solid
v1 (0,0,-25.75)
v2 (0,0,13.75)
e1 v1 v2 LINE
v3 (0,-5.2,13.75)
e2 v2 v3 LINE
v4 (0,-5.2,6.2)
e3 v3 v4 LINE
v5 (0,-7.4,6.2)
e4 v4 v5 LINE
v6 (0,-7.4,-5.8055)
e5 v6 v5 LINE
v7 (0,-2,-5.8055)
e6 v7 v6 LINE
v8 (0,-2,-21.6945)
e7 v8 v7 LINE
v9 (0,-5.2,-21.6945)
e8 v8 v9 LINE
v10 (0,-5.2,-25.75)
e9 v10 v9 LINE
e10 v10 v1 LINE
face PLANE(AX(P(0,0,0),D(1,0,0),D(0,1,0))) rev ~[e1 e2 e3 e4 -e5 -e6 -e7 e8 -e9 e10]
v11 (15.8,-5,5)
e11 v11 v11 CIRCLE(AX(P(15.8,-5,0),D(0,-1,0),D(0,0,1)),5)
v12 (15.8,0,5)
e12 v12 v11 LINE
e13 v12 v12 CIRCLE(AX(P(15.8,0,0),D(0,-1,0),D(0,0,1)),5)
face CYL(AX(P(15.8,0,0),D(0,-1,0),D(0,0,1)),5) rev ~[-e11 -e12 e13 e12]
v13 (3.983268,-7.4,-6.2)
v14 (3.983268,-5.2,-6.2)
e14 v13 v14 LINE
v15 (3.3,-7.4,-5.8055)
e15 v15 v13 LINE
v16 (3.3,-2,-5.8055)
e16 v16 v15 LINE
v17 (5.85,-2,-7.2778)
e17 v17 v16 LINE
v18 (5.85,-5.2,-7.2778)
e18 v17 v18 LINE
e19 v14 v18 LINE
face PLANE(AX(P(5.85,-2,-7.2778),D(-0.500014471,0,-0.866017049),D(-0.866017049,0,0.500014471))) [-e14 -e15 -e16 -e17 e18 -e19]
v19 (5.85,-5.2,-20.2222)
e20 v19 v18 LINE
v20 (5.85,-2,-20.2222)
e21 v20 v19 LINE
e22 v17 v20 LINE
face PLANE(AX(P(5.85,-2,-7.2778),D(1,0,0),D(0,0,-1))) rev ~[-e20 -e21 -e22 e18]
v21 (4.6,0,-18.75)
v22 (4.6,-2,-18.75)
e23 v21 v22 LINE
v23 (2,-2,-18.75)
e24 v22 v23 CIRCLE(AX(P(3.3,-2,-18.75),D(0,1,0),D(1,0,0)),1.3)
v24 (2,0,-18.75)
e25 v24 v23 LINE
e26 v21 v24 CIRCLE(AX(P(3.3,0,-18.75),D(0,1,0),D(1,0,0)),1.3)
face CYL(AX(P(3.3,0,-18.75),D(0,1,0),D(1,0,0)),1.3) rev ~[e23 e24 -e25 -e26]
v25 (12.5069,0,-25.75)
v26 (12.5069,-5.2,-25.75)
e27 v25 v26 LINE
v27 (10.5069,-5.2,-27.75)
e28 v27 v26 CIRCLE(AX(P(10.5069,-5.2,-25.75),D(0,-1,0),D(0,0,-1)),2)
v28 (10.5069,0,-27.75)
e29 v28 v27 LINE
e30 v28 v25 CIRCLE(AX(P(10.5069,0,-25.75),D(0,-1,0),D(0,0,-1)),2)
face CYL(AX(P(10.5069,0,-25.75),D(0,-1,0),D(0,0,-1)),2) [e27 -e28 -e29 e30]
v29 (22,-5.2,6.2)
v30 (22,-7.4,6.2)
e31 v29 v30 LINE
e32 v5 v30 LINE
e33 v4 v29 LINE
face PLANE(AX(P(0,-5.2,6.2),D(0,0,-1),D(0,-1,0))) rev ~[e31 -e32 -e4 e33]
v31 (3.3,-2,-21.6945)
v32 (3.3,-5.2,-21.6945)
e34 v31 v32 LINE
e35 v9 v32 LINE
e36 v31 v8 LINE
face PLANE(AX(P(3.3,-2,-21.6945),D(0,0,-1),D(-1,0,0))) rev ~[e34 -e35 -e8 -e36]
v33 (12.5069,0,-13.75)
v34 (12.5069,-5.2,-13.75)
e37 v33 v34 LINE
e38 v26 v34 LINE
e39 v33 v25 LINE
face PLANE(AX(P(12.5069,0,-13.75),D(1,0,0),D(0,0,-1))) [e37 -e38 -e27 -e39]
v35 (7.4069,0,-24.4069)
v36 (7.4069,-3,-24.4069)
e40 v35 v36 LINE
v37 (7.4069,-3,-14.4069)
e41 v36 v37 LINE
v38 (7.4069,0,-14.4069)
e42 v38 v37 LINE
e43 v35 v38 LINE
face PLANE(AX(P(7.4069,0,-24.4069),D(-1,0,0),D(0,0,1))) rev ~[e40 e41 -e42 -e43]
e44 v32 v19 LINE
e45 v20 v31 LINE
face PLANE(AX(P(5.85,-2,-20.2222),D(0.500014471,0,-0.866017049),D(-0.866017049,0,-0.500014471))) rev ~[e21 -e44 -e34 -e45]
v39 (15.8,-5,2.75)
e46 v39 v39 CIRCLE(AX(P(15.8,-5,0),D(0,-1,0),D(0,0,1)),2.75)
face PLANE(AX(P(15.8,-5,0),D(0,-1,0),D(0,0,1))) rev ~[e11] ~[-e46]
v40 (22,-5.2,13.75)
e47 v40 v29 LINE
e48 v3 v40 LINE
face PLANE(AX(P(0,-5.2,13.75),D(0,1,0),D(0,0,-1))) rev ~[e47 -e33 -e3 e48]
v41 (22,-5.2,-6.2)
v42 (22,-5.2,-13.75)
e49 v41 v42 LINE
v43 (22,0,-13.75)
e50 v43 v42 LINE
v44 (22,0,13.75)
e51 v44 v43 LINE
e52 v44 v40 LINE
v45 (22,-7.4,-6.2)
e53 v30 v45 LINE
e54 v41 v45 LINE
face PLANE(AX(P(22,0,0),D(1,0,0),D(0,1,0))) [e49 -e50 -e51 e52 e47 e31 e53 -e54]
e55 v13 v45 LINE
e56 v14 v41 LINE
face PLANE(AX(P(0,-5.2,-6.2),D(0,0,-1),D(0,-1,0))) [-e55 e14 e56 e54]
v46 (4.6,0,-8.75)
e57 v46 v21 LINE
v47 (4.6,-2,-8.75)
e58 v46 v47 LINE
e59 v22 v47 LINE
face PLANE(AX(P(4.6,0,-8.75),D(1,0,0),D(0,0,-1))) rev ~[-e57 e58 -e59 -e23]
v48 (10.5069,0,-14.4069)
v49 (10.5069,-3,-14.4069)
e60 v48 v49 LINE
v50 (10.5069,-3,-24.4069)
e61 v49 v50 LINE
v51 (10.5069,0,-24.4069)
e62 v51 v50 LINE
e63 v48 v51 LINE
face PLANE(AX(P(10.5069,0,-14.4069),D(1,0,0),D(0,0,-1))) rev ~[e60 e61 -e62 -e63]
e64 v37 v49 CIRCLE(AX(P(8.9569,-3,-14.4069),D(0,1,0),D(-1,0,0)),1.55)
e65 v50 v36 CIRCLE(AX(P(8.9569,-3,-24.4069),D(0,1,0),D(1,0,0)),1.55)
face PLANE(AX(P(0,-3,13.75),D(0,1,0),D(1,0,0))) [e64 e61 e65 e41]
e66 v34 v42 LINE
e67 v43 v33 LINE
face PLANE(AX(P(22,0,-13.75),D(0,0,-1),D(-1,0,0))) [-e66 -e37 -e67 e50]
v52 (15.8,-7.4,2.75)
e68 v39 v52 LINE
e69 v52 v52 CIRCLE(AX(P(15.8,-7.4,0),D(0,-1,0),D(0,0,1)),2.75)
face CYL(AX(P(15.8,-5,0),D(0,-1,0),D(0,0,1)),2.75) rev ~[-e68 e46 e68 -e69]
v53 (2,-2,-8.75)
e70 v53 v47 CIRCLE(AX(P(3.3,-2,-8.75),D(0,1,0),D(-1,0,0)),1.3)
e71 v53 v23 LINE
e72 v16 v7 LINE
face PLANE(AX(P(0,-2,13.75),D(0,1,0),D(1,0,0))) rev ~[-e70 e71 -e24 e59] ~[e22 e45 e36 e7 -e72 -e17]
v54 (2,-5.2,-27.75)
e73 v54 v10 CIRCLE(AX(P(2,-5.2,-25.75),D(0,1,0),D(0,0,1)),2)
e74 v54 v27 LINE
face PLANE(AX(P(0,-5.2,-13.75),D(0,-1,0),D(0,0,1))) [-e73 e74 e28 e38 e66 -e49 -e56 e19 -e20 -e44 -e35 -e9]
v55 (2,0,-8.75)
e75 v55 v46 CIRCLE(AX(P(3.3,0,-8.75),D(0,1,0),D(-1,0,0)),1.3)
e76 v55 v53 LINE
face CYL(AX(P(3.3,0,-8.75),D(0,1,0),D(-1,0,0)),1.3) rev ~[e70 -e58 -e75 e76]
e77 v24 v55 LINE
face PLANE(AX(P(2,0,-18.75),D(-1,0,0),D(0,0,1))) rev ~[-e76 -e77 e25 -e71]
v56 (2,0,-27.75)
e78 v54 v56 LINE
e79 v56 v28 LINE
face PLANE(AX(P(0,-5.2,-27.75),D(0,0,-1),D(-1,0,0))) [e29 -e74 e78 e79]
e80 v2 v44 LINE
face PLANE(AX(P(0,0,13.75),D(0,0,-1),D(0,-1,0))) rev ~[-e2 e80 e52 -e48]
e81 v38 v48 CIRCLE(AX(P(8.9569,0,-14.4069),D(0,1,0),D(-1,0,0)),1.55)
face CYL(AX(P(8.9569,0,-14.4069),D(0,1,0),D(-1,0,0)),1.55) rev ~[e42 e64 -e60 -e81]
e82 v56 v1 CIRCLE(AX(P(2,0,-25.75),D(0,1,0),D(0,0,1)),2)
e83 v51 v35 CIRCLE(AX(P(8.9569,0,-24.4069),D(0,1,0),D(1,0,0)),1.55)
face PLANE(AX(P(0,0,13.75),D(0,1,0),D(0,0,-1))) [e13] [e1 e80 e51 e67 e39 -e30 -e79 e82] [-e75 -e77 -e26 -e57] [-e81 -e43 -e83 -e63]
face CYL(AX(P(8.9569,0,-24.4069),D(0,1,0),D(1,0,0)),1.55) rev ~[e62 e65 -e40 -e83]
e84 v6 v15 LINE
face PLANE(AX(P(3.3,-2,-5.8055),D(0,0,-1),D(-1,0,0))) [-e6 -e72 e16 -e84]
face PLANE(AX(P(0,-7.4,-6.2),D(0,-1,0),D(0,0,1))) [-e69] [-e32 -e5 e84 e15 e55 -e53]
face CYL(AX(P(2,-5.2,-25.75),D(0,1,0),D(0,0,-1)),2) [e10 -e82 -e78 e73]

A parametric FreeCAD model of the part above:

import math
import FreeCAD as App
import Part
import Sketcher

V = App.Vector
Q = App.Units.Quantity


def edges_at(feature, points):
    """Names of the edges that pass closest to the given points."""
    edges = feature.Shape.Edges
    near = lambda p: min(range(len(edges)), key=lambda i: edges[i].distToShape(Part.Vertex(*p))[0])
    return sorted({f"Edge{near(p) + 1}" for p in points})


def add_polygon(sketch, points):
    """Adds a closed chain of lines whose ends are joined by coincident constraints."""
    first, n = sketch.GeometryCount, len(points)
    for a, b in zip(points, points[1:] + points[:1]):
        sketch.addGeometry(Part.LineSegment(App.Vector(*a, 0), App.Vector(*b, 0)), False)
    for i in range(n):
        sketch.addConstraint(Sketcher.Constraint("Coincident", first + i, 2, first + (i + 1) % n, 1))

doc = App.newDocument("Part")
body = doc.addObject("PartDesign::Body", "Body")

# Sketch on YZ plane
sketch1 = body.newObject("Sketcher::SketchObject", "Sketch")
sketch1.AttachmentSupport = (doc.getObject("YZ_Plane"), [""])
sketch1.MapMode = "FlatFace"
add_polygon(sketch1, [(0, -13.75), (0, 13.75), (-5.2, 13.75), (-5.2, 6.2), (-7.4, 6.2), (-7.4, -6.2), (-5.2, -6.2), (-5.2, -13.75)])  # lines 0-7
sketch1.addConstraint(Sketcher.Constraint("Vertical", 0))
sketch1.addConstraint(Sketcher.Constraint("Horizontal", 1))
sketch1.addConstraint(Sketcher.Constraint("Vertical", 2))
sketch1.addConstraint(Sketcher.Constraint("Horizontal", 3))
sketch1.addConstraint(Sketcher.Constraint("Vertical", 4))
sketch1.addConstraint(Sketcher.Constraint("Horizontal", 5))
sketch1.addConstraint(Sketcher.Constraint("Vertical", 6))
sketch1.addConstraint(Sketcher.Constraint("Horizontal", 7))
sketch1.addConstraint(Sketcher.Constraint("Symmetric", 0, 2, 7, 2, -1, 1))
sketch1.addConstraint(Sketcher.Constraint("Symmetric", 2, 2, 5, 2, -1))
sketch1.addConstraint(Sketcher.Constraint("DistanceX", 1, 2, 1, 1, Q("5.2 mm")))
sketch1.addConstraint(Sketcher.Constraint("DistanceX", 3, 2, 3, 1, Q("2.2 mm")))
sketch1.addConstraint(Sketcher.Constraint("DistanceY", 0, 1, 0, 2, Q("27.5 mm")))
sketch1.addConstraint(Sketcher.Constraint("DistanceY", 2, 2, 2, 1, Q("7.55 mm")))
pad1 = body.newObject("PartDesign::Pad", "Pad")
pad1.Profile = sketch1
pad1.Length = 22

# Sketch on XY plane
sketch2 = body.newObject("Sketcher::SketchObject", "Sketch001")
sketch2.AttachmentSupport = (doc.getObject("XY_Plane"), [""])
sketch2.MapMode = "FlatFace"
sketch2.AttachmentOffset = App.Placement(V(0, 0, -13.75), App.Rotation())
add_polygon(sketch2, [(22, -5.2), (0, -5.2), (0, 0), (22, 0)])  # lines 0-3
sketch2.addConstraint(Sketcher.Constraint("Horizontal", 0))
sketch2.addConstraint(Sketcher.Constraint("Vertical", 1))
sketch2.addConstraint(Sketcher.Constraint("Horizontal", 2))
sketch2.addConstraint(Sketcher.Constraint("Vertical", 3))
sketch2.addConstraint(Sketcher.Constraint("Coincident", 1, 2, -1, 1))
sketch2.addConstraint(Sketcher.Constraint("DistanceX", 0, 2, 0, 1, Q("22 mm")))
sketch2.addConstraint(Sketcher.Constraint("DistanceY", 1, 1, 1, 2, Q("5.2 mm")))
pad2 = body.newObject("PartDesign::Pad", "Pad001")
pad2.Profile = sketch2
pad2.Length = 14
pad2.Reversed = True

# Sketch on XZ plane
sketch3 = body.newObject("Sketcher::SketchObject", "Sketch002")
sketch3.AttachmentSupport = (doc.getObject("XZ_Plane"), [""])
sketch3.MapMode = "FlatFace"
sketch3.addGeometry(Part.ArcOfCircle(Part.Circle(V(8.9569, -14.4069, 0), V(0, 0, 1), 1.55), math.radians(0), math.radians(180)), False)
sketch3.addGeometry(Part.LineSegment(V(10.5069, -14.4069, 0), V(10.5069, -24.4069, 0)), False)
sketch3.addGeometry(Part.ArcOfCircle(Part.Circle(V(8.9569, -24.4069, 0), V(0, 0, 1), 1.55), math.radians(180), math.radians(360)), False)
sketch3.addGeometry(Part.LineSegment(V(7.4069, -24.4069, 0), V(7.4069, -14.4069, 0)), False)
sketch3.addGeometry(Part.ArcOfCircle(Part.Circle(V(3.3, -8.75, 0), V(0, 0, 1), 1.3), math.radians(0), math.radians(180)), False)
sketch3.addGeometry(Part.LineSegment(V(4.6, -8.75, 0), V(4.6, -18.75, 0)), False)
sketch3.addGeometry(Part.ArcOfCircle(Part.Circle(V(3.3, -18.75, 0), V(0, 0, 1), 1.3), math.radians(180), math.radians(360)), False)
sketch3.addGeometry(Part.LineSegment(V(2, -18.75, 0), V(2, -8.75, 0)), False)
sketch3.addConstraint(Sketcher.Constraint("Tangent", 0, 1, 1, 1))
sketch3.addConstraint(Sketcher.Constraint("Tangent", 1, 2, 2, 2))
sketch3.addConstraint(Sketcher.Constraint("Tangent", 2, 1, 3, 1))
sketch3.addConstraint(Sketcher.Constraint("Tangent", 3, 2, 0, 2))
sketch3.addConstraint(Sketcher.Constraint("Tangent", 4, 1, 5, 1))
sketch3.addConstraint(Sketcher.Constraint("Tangent", 5, 2, 6, 2))
sketch3.addConstraint(Sketcher.Constraint("Tangent", 6, 1, 7, 1))
sketch3.addConstraint(Sketcher.Constraint("Tangent", 7, 2, 4, 2))
sketch3.addConstraint(Sketcher.Constraint("Vertical", 1))
sketch3.addConstraint(Sketcher.Constraint("Vertical", 3))
sketch3.addConstraint(Sketcher.Constraint("Vertical", 5))
sketch3.addConstraint(Sketcher.Constraint("Vertical", 7))
sketch3.addConstraint(Sketcher.Constraint("Equal", 3, 5))
sketch3.addConstraint(Sketcher.Constraint("Radius", 4, Q("1.3 mm")))
sketch3.addConstraint(Sketcher.Constraint("DistanceY", 1, 2, 1, 1, Q("10 mm")))
sketch3.addConstraint(Sketcher.Constraint("Radius", 0, Q("1.55 mm")))
sketch3.addConstraint(Sketcher.Constraint("DistanceX", -1, 1, 6, 1, Q("2 mm")))
sketch3.addConstraint(Sketcher.Constraint("DistanceY", 4, 3, -1, 1, Q("8.75 mm")))
sketch3.addConstraint(Sketcher.Constraint("DistanceX", -1, 1, 0, 3, Q("8.957 mm")))
sketch3.addConstraint(Sketcher.Constraint("DistanceY", 0, 3, -1, 1, Q("14.407 mm")))
pocket1 = body.newObject("PartDesign::Pocket", "Pocket")
pocket1.Profile = sketch3
pocket1.Length = 3
pocket1.Reversed = True

# Sketch on XZ plane
sketch4 = body.newObject("Sketcher::SketchObject", "Sketch003")
sketch4.AttachmentSupport = (doc.getObject("XZ_Plane"), [""])
sketch4.MapMode = "FlatFace"
sketch4.AttachmentOffset = App.Placement(V(0, 0, 2), App.Rotation())
add_polygon(sketch4, [(3.3, -5.8055), (5.85, -7.2778), (5.85, -20.2222), (3.3, -21.6945), (0, -21.6945), (0, -5.8055)])  # lines 0-5
sketch4.addConstraint(Sketcher.Constraint("Vertical", 1))
sketch4.addConstraint(Sketcher.Constraint("Horizontal", 3))
sketch4.addConstraint(Sketcher.Constraint("Vertical", 4))
sketch4.addConstraint(Sketcher.Constraint("Horizontal", 5))
sketch4.addConstraint(Sketcher.Constraint("PointOnObject", 3, 2, -2))
sketch4.addConstraint(Sketcher.Constraint("Vertical", 2, 2, 5, 2))
sketch4.addConstraint(Sketcher.Constraint("Equal", 0, 2))
sketch4.addConstraint(Sketcher.Constraint("Angle", 0, Q("-30.001 deg")))
sketch4.addConstraint(Sketcher.Constraint("DistanceX", 3, 2, 3, 1, Q("3.3 mm")))
sketch4.addConstraint(Sketcher.Constraint("DistanceY", 4, 1, 4, 2, Q("15.889 mm")))
sketch4.addConstraint(Sketcher.Constraint("DistanceX", -1, 1, 0, 2, Q("5.85 mm")))
sketch4.addConstraint(Sketcher.Constraint("DistanceY", 0, 2, -1, 1, Q("7.2778 mm")))
pocket2 = body.newObject("PartDesign::Pocket", "Pocket001")
pocket2.Profile = sketch4
pocket2.Type = "ThroughAll"
pocket2.Reversed = True

# Sketch on XZ plane
sketch5 = body.newObject("Sketcher::SketchObject", "Sketch004")
sketch5.AttachmentSupport = (doc.getObject("XZ_Plane"), [""])
sketch5.MapMode = "FlatFace"
sketch5.addGeometry(Part.Circle(V(15.8, 0, 0), V(0, 0, 1), 2.75), False)
sketch5.addConstraint(Sketcher.Constraint("PointOnObject", 0, 3, -1))
sketch5.addConstraint(Sketcher.Constraint("Diameter", 0, Q("5.5 mm")))
sketch5.addConstraint(Sketcher.Constraint("DistanceX", -1, 1, 0, 3, Q("15.8 mm")))
doc.recompute()
hole = body.newObject("PartDesign::Hole", "Hole")
hole.Profile = sketch5
hole.ThreadType = "None"
hole.Diameter = 5.5
hole.DepthType = "ThroughAll"
hole.HoleCutType = "Counterbore"
hole.HoleCutDiameter = 10
hole.HoleCutDepth = 5
hole.Reversed = True

# Sketch on XZ plane
sketch6 = body.newObject("Sketcher::SketchObject", "Sketch005")
sketch6.AttachmentSupport = (doc.getObject("XZ_Plane"), [""])
sketch6.MapMode = "FlatFace"
add_polygon(sketch6, [(12.5069, -13.75), (22, -13.75), (22, -27.75), (12.5069, -27.75)])  # lines 0-3
sketch6.addConstraint(Sketcher.Constraint("Horizontal", 0))
sketch6.addConstraint(Sketcher.Constraint("Vertical", 1))
sketch6.addConstraint(Sketcher.Constraint("Horizontal", 2))
sketch6.addConstraint(Sketcher.Constraint("Vertical", 3))
sketch6.addConstraint(Sketcher.Constraint("DistanceY", 1, 2, 1, 1, Q("14 mm")))
sketch6.addConstraint(Sketcher.Constraint("DistanceX", -1, 1, 0, 2, Q("22 mm")))
sketch6.addConstraint(Sketcher.Constraint("DistanceX", 0, 1, 0, 2, Q("9.493 mm")))
sketch6.addConstraint(Sketcher.Constraint("DistanceY", 0, 2, -1, 1, Q("13.75 mm")))
pocket3 = body.newObject("PartDesign::Pocket", "Pocket002")
pocket3.Profile = sketch6
pocket3.Type = "ThroughAll"
pocket3.Reversed = True
doc.recompute()

fillet = body.newObject("PartDesign::Fillet", "Fillet")
fillet.Base = (pocket3, edges_at(pocket3, [(12.507, -2.6, -27.75)]))
fillet.Radius = 2
doc.recompute()

fillet2 = body.newObject("PartDesign::Fillet", "Fillet001")
fillet2.Base = (fillet, edges_at(fillet, [(0, -2.6, -27.75)]))
fillet2.Radius = 2

doc.recompute()
